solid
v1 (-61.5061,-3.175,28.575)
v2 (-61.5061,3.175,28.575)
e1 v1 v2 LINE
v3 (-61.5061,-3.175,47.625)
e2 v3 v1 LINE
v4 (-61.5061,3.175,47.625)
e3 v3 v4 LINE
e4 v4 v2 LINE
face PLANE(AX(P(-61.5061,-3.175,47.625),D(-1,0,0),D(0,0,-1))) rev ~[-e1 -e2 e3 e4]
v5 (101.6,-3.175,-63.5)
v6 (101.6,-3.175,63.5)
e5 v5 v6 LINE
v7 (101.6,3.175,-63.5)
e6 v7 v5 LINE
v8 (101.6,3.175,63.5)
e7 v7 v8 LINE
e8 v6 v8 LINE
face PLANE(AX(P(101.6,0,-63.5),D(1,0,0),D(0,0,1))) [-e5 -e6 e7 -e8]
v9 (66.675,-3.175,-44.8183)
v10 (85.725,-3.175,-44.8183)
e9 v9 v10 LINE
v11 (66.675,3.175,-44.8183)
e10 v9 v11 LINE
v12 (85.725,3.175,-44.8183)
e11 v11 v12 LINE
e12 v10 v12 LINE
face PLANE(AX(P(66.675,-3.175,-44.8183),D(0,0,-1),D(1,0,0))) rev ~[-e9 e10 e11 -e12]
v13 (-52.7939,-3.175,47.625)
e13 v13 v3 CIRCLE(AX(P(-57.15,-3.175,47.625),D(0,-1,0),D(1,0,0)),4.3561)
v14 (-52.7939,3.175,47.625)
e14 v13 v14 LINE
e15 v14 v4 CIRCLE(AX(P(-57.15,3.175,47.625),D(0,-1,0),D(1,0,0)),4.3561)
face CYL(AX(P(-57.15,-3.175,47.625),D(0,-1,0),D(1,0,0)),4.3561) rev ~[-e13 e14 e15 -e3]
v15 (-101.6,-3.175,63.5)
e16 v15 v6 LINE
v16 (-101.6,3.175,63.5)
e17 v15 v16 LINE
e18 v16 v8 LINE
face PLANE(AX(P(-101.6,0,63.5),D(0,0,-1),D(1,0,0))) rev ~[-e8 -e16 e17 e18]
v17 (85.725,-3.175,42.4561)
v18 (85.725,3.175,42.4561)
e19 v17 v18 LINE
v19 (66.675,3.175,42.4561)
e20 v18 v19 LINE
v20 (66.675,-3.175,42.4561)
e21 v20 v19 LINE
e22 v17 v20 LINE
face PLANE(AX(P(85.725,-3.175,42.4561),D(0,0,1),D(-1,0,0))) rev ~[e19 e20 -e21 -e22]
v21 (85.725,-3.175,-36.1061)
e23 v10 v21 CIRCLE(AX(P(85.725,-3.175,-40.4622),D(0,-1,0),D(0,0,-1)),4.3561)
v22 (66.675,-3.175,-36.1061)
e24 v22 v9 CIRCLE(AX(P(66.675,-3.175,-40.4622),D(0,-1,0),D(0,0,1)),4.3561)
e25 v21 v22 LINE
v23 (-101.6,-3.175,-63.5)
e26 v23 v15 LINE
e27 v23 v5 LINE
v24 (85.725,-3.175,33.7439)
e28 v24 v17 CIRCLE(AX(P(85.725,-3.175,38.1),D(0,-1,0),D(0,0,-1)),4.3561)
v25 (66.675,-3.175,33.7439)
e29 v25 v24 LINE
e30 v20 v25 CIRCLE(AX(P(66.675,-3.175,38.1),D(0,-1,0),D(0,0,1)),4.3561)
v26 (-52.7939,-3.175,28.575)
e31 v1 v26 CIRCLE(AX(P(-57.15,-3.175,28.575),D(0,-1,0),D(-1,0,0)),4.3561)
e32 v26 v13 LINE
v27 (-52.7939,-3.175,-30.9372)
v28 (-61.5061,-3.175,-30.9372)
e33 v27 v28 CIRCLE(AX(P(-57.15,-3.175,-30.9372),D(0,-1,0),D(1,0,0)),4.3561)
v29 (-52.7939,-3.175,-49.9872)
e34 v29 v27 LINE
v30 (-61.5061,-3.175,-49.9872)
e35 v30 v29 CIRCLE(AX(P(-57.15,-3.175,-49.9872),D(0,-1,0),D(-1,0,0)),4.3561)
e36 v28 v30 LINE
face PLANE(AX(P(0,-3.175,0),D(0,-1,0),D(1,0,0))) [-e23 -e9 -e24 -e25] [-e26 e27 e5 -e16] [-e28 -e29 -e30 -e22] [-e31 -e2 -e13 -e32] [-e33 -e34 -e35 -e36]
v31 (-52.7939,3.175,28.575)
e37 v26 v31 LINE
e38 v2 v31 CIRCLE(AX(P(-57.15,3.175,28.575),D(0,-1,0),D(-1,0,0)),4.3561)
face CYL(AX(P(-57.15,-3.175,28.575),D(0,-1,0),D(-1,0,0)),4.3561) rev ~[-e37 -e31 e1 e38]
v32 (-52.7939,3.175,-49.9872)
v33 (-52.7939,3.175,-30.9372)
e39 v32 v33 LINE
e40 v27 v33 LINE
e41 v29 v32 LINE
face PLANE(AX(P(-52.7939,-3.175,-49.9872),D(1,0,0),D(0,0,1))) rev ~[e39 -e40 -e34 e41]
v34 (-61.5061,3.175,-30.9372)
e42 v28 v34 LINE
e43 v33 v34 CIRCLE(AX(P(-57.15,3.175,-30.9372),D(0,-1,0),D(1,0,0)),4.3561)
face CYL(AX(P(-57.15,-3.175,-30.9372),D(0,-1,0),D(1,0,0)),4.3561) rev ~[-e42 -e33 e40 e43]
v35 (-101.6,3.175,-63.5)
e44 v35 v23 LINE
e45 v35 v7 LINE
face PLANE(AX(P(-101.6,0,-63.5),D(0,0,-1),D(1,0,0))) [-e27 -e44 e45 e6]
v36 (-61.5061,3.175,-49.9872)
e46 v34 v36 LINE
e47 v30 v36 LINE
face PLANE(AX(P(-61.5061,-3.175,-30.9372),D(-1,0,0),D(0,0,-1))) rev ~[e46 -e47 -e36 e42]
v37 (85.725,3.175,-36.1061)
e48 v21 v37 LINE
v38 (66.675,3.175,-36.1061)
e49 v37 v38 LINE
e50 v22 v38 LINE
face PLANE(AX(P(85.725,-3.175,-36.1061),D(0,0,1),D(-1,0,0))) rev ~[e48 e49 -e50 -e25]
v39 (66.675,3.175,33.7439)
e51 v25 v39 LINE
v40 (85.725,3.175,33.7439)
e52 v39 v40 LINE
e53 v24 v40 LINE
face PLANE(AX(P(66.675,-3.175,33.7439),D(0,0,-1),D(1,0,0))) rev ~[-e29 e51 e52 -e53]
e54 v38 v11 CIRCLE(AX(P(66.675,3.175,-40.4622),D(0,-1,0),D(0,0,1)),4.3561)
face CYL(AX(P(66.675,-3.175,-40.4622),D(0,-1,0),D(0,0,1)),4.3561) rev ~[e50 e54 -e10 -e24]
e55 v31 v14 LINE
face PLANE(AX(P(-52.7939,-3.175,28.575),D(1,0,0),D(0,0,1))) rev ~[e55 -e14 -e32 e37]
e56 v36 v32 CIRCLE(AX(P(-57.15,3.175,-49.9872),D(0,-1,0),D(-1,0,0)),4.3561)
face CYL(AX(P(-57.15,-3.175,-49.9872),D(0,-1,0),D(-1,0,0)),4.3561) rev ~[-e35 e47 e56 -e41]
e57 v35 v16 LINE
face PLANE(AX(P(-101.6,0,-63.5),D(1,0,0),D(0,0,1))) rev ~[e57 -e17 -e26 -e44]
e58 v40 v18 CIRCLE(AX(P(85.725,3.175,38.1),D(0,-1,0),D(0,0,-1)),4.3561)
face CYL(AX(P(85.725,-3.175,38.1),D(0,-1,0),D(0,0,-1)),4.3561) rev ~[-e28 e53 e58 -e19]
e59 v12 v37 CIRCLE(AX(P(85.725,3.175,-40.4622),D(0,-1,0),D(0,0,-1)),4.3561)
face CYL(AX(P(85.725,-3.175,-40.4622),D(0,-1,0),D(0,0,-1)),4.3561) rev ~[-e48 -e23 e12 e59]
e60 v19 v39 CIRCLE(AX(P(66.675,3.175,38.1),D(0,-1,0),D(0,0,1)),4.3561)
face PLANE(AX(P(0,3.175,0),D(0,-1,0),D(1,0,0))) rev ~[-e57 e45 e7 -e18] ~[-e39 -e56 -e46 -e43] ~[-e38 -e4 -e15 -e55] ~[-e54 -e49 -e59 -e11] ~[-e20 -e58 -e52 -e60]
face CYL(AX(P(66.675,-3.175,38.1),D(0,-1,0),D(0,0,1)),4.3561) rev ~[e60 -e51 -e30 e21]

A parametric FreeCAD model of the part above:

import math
import FreeCAD as App
import Part
import Sketcher
Q = App.Units.Quantity

doc = App.newDocument("Part")
body = doc.addObject("PartDesign::Body", "Body")

# Sketch on XZ plane
sketch1 = doc.addObject("Sketcher::SketchObject", "Sketch")
body.addObject(sketch1)
sketch1.AttachmentSupport = (doc.XZ_Plane, [""])
sketch1.MapMode = "FlatFace"
sketch1.addGeometry(Part.LineSegment(App.Vector(-101.6, 63.5, 0), App.Vector(-101.6, -63.5, 0)), False)
sketch1.addGeometry(Part.LineSegment(App.Vector(-101.6, -63.5, 0), App.Vector(101.6, -63.5, 0)), False)
sketch1.addGeometry(Part.LineSegment(App.Vector(101.6, -63.5, 0), App.Vector(101.6, 63.5, 0)), False)
sketch1.addGeometry(Part.LineSegment(App.Vector(101.6, 63.5, 0), App.Vector(-101.6, 63.5, 0)), False)
sketch1.addConstraint(Sketcher.Constraint("Coincident", 0, 2, 1, 1))
sketch1.addConstraint(Sketcher.Constraint("Coincident", 1, 2, 2, 1))
sketch1.addConstraint(Sketcher.Constraint("Coincident", 2, 2, 3, 1))
sketch1.addConstraint(Sketcher.Constraint("Coincident", 3, 2, 0, 1))
sketch1.addConstraint(Sketcher.Constraint("Vertical", 0))
sketch1.addConstraint(Sketcher.Constraint("Horizontal", 1))
sketch1.addConstraint(Sketcher.Constraint("Vertical", 2))
sketch1.addConstraint(Sketcher.Constraint("Horizontal", 3))
sketch1.addConstraint(Sketcher.Constraint("Symmetric", 0, 2, 2, 2, -1, 1))
sketch1.addConstraint(Sketcher.Constraint("DistanceX", 1, 1, 1, 2, Q("8 in")))
sketch1.addConstraint(Sketcher.Constraint("DistanceY", 0, 2, 0, 1, Q("5 in")))
pad1 = doc.addObject("PartDesign::Pad", "Pad")
body.addObject(pad1)
pad1.Profile = sketch1
pad1.Length = Q("0.25 in")
pad1.Midplane = True

# Sketch on XZ plane
sketch2 = doc.addObject("Sketcher::SketchObject", "Sketch001")
body.addObject(sketch2)
sketch2.AttachmentSupport = (doc.XZ_Plane, [""])
sketch2.MapMode = "FlatFace"
sketch2.AttachmentOffset = App.Placement(App.Vector(0, 0, 0.125 * 25.4), App.Rotation())
sketch2.addGeometry(Part.ArcOfCircle(Part.Circle(App.Vector(-57.15, 47.625, 0), App.Vector(0, 0, 1), 4.3561), math.radians(0), math.radians(180)), False)
sketch2.addGeometry(Part.LineSegment(App.Vector(-61.5061, 47.625, 0), App.Vector(-61.5061, 28.575, 0)), False)
sketch2.addGeometry(Part.ArcOfCircle(Part.Circle(App.Vector(-57.15, 28.575, 0), App.Vector(0, 0, 1), 4.3561), math.radians(180), math.radians(360)), False)
sketch2.addGeometry(Part.LineSegment(App.Vector(-52.7939, 28.575, 0), App.Vector(-52.7939, 47.625, 0)), False)
sketch2.addGeometry(Part.ArcOfCircle(Part.Circle(App.Vector(-57.15, -30.9372, 0), App.Vector(0, 0, 1), 4.3561), math.radians(0), math.radians(180)), False)
sketch2.addGeometry(Part.LineSegment(App.Vector(-61.5061, -30.9372, 0), App.Vector(-61.5061, -49.9872, 0)), False)
sketch2.addGeometry(Part.ArcOfCircle(Part.Circle(App.Vector(-57.15, -49.9872, 0), App.Vector(0, 0, 1), 4.3561), math.radians(180), math.radians(360)), False)
sketch2.addGeometry(Part.LineSegment(App.Vector(-52.7939, -49.9872, 0), App.Vector(-52.7939, -30.9372, 0)), False)
sketch2.addGeometry(Part.ArcOfCircle(Part.Circle(App.Vector(66.675, 38.1, 0), App.Vector(0, 0, 1), 4.3561), math.radians(90), math.radians(270)), False)
sketch2.addGeometry(Part.LineSegment(App.Vector(66.675, 33.7439, 0), App.Vector(85.725, 33.7439, 0)), False)
sketch2.addGeometry(Part.ArcOfCircle(Part.Circle(App.Vector(85.725, 38.1, 0), App.Vector(0, 0, 1), 4.3561), math.radians(-90), math.radians(90)), False)
sketch2.addGeometry(Part.LineSegment(App.Vector(85.725, 42.4561, 0), App.Vector(66.675, 42.4561, 0)), False)
sketch2.addGeometry(Part.ArcOfCircle(Part.Circle(App.Vector(66.675, -40.4622, 0), App.Vector(0, 0, 1), 4.3561), math.radians(90), math.radians(270)), False)
sketch2.addGeometry(Part.LineSegment(App.Vector(66.675, -44.8183, 0), App.Vector(85.725, -44.8183, 0)), False)
sketch2.addGeometry(Part.ArcOfCircle(Part.Circle(App.Vector(85.725, -40.4622, 0), App.Vector(0, 0, 1), 4.3561), math.radians(-90), math.radians(90)), False)
sketch2.addGeometry(Part.LineSegment(App.Vector(85.725, -36.1061, 0), App.Vector(66.675, -36.1061, 0)), False)
sketch2.addConstraint(Sketcher.Constraint("Tangent", 0, 2, 1, 1))
sketch2.addConstraint(Sketcher.Constraint("Tangent", 1, 2, 2, 1))
sketch2.addConstraint(Sketcher.Constraint("Tangent", 2, 2, 3, 1))
sketch2.addConstraint(Sketcher.Constraint("Tangent", 3, 2, 0, 1))
sketch2.addConstraint(Sketcher.Constraint("Tangent", 4, 2, 5, 1))
sketch2.addConstraint(Sketcher.Constraint("Tangent", 5, 2, 6, 1))
sketch2.addConstraint(Sketcher.Constraint("Tangent", 6, 2, 7, 1))
sketch2.addConstraint(Sketcher.Constraint("Tangent", 7, 2, 4, 1))
sketch2.addConstraint(Sketcher.Constraint("Tangent", 8, 2, 9, 1))
sketch2.addConstraint(Sketcher.Constraint("Tangent", 9, 2, 10, 1))
sketch2.addConstraint(Sketcher.Constraint("Tangent", 10, 2, 11, 1))
sketch2.addConstraint(Sketcher.Constraint("Tangent", 11, 2, 8, 1))
sketch2.addConstraint(Sketcher.Constraint("Tangent", 12, 2, 13, 1))
sketch2.addConstraint(Sketcher.Constraint("Tangent", 13, 2, 14, 1))
sketch2.addConstraint(Sketcher.Constraint("Tangent", 14, 2, 15, 1))
sketch2.addConstraint(Sketcher.Constraint("Tangent", 15, 2, 12, 1))
sketch2.addConstraint(Sketcher.Constraint("Vertical", 1))
sketch2.addConstraint(Sketcher.Constraint("Vertical", 3))
sketch2.addConstraint(Sketcher.Constraint("Vertical", 5))
sketch2.addConstraint(Sketcher.Constraint("Vertical", 7))
sketch2.addConstraint(Sketcher.Constraint("Horizontal", 9))
sketch2.addConstraint(Sketcher.Constraint("Horizontal", 11))
sketch2.addConstraint(Sketcher.Constraint("Horizontal", 13))
sketch2.addConstraint(Sketcher.Constraint("Horizontal", 15))
sketch2.addConstraint(Sketcher.Constraint("Equal", 2, 4))
sketch2.addConstraint(Sketcher.Constraint("Equal", 6, 8))
sketch2.addConstraint(Sketcher.Constraint("Equal", 10, 12))
sketch2.addConstraint(Sketcher.Constraint("Vertical", 2, 3, 4, 3))
sketch2.addConstraint(Sketcher.Constraint("Vertical", 8, 3, 12, 3))
sketch2.addConstraint(Sketcher.Constraint("Vertical", 10, 3, 14, 3))
sketch2.addConstraint(Sketcher.Constraint("Equal", 15, 1))
sketch2.addConstraint(Sketcher.Constraint("Equal", 3, 5))
sketch2.addConstraint(Sketcher.Constraint("DistanceX", 9, 1, 9, 2, Q("0.75 in")))
sketch2.addConstraint(Sketcher.Constraint("DistanceY", -1, 1, 8, 3, Q("1.5 in")))
sketch2.addConstraint(Sketcher.Constraint("Radius", 0, Q("0.1715 in")))
sketch2.addConstraint(Sketcher.Constraint("DistanceX", 0, 3, -1, 1, Q("2.25 in")))
sketch2.addConstraint(Sketcher.Constraint("DistanceY", 14, 2, 9, 2, Q("2.75 in")))
sketch2.addConstraint(Sketcher.Constraint("DistanceY", -1, 1, 0, 3, Q("1.875 in")))
sketch2.addConstraint(Sketcher.Constraint("DistanceY", 4, 3, -1, 1, Q("1.218 in")))
sketch2.addConstraint(Sketcher.Constraint("DistanceX", -1, 1, 8, 3, Q("2.625 in")))
pocket1 = doc.addObject("PartDesign::Pocket", "Pocket")
body.addObject(pocket1)
pocket1.Profile = sketch2
pocket1.Length = Q("1 in")

doc.recompute()
